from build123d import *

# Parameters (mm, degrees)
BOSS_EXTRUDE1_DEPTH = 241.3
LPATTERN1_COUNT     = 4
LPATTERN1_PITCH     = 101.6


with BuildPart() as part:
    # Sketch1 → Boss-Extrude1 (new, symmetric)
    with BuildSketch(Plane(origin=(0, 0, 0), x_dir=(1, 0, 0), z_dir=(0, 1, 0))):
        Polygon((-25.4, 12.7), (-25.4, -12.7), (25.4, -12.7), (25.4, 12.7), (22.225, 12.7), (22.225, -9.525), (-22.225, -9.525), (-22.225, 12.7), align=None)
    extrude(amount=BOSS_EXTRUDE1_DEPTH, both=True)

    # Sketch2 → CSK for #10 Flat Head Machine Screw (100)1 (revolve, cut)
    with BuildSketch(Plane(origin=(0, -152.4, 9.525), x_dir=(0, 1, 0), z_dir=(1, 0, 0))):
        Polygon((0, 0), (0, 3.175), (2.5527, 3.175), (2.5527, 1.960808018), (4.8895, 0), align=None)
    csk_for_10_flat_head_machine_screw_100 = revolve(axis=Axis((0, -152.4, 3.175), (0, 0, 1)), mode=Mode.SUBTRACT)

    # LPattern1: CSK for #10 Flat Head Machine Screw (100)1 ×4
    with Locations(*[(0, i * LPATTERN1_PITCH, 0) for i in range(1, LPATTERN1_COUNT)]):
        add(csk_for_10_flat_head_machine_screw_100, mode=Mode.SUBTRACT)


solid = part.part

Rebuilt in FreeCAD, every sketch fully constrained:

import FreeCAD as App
import Part
import Sketcher
from FreeCAD import Vector
Q = App.Units.Quantity

doc = App.newDocument("Part")
body = doc.addObject("PartDesign::Body", "Body")

sketch1 = body.newObject("Sketcher::SketchObject", "Sketch")
sketch1.AttachmentSupport = (doc.getObject("XZ_Plane"), [""])
sketch1.MapMode = "FlatFace"
sketch1.addGeometry([
    Part.LineSegment(Vector(-25.4, -12.7, 0), Vector(-25.4, 12.7, 0)),
    Part.LineSegment(Vector(-25.4, 12.7, 0), Vector(25.4, 12.7, 0)),
    Part.LineSegment(Vector(25.4, 12.7, 0), Vector(25.4, -12.7, 0)),
    Part.LineSegment(Vector(25.4, -12.7, 0), Vector(22.225, -12.7, 0)),
    Part.LineSegment(Vector(22.225, -12.7, 0), Vector(22.225, 9.525, 0)),
    Part.LineSegment(Vector(22.225, 9.525, 0), Vector(-22.225, 9.525, 0)),
    Part.LineSegment(Vector(-22.225, 9.525, 0), Vector(-22.225, -12.7, 0)),
    Part.LineSegment(Vector(-22.225, -12.7, 0), Vector(-25.4, -12.7, 0)),
], False)
sketch1.addConstraint([
    Sketcher.Constraint("Coincident", 0, 2, 1, 1),
    Sketcher.Constraint("Coincident", 1, 2, 2, 1),
    Sketcher.Constraint("Coincident", 2, 2, 3, 1),
    Sketcher.Constraint("Coincident", 3, 2, 4, 1),
    Sketcher.Constraint("Coincident", 4, 2, 5, 1),
    Sketcher.Constraint("Coincident", 5, 2, 6, 1),
    Sketcher.Constraint("Coincident", 6, 2, 7, 1),
    Sketcher.Constraint("Coincident", 7, 2, 0, 1),
    Sketcher.Constraint("Vertical", 0),
    Sketcher.Constraint("Horizontal", 1),
    Sketcher.Constraint("Vertical", 2),
    Sketcher.Constraint("Horizontal", 3),
    Sketcher.Constraint("Vertical", 4),
    Sketcher.Constraint("Horizontal", 5),
    Sketcher.Constraint("Vertical", 6),
    Sketcher.Constraint("Horizontal", 7),
    Sketcher.Constraint("Symmetric", 0, 2, 2, 2, -1, 1),
    Sketcher.Constraint("Symmetric", 3, 2, 6, 2, -2),
    Sketcher.Constraint("DistanceX", 1, 1, 1, 2, Q("2 in")),
    Sketcher.Constraint("DistanceY", 0, 1, 0, 2, Q("1 in")),
    Sketcher.Constraint("DistanceX", 5, 2, 5, 1, Q("1.75 in")),
    Sketcher.Constraint("DistanceY", 4, 1, 4, 2, Q("0.875 in")),
])
pad1 = body.newObject("PartDesign::Pad", "Pad")
pad1.Profile = sketch1
pad1.Length = Q("19 in")
pad1.Midplane = True

sketch2 = body.newObject("Sketcher::SketchObject", "Sketch001")
sketch2.AttachmentSupport = (doc.getObject("YZ_Plane"), [""])
sketch2.MapMode = "FlatFace"
sketch2.addGeometry([
    Part.LineSegment(Vector(-152.4, 12.7, 0), Vector(-152.4, 9.525, 0)),
    Part.LineSegment(Vector(-152.4, 9.525, 0), Vector(-147.5105, 9.525, 0)),
    Part.LineSegment(Vector(-147.5105, 9.525, 0), Vector(-149.8473, 11.485808, 0)),
    Part.LineSegment(Vector(-149.8473, 11.485808, 0), Vector(-149.8473, 12.7, 0)),
    Part.LineSegment(Vector(-149.8473, 12.7, 0), Vector(-152.4, 12.7, 0)),
], False)
sketch2.addGeometry(Part.LineSegment(Vector(-152.4, 9.525, 0), Vector(-152.4, 12.7, 0)), True)
sketch2.addConstraint([
    Sketcher.Constraint("Coincident", 0, 2, 1, 1),
    Sketcher.Constraint("Coincident", 1, 2, 2, 1),
    Sketcher.Constraint("Coincident", 2, 2, 3, 1),
    Sketcher.Constraint("Coincident", 3, 2, 4, 1),
    Sketcher.Constraint("Coincident", 4, 2, 0, 1),
    Sketcher.Constraint("Vertical", 0),
    Sketcher.Constraint("Horizontal", 1),
    Sketcher.Constraint("Vertical", 3),
    Sketcher.Constraint("Horizontal", 4),
    Sketcher.Constraint("Vertical", 5),
    Sketcher.Constraint("Coincident", 5, 1, 0, 2),
    Sketcher.Constraint("Horizontal", 3, 2, 5, 2),
    Sketcher.Constraint("DistanceX", 0, 2, -1, 1, Q("6 in")),
    Sketcher.Constraint("Angle", 2, Q("140 deg")),
    Sketcher.Constraint("DistanceY", -1, 1, 3, 2, Q("0.5 in")),
    Sketcher.Constraint("DistanceY", 0, 2, 0, 1, Q("0.125 in")),
    Sketcher.Constraint("DistanceX", 1, 1, 1, 2, Q("0.1925 in")),
    Sketcher.Constraint("DistanceX", 4, 2, 4, 1, Q("0.1005 in")),
])
groove = body.newObject("PartDesign::Groove", "Groove")
groove.Profile = sketch2
groove.ReferenceAxis = (sketch2, ["Axis0"])
groove.Angle = 360
doc.recompute()

linearpattern = body.newObject("PartDesign::LinearPattern", "LinearPattern")
linearpattern.Originals = [groove]
linearpattern.Direction = (doc.getObject("Y_Axis"), [""])
linearpattern.Mode = "offset"
linearpattern.Offset = Q("4 in")
linearpattern.Occurrences = 4
body.Tip = linearpattern

doc.recompute()
